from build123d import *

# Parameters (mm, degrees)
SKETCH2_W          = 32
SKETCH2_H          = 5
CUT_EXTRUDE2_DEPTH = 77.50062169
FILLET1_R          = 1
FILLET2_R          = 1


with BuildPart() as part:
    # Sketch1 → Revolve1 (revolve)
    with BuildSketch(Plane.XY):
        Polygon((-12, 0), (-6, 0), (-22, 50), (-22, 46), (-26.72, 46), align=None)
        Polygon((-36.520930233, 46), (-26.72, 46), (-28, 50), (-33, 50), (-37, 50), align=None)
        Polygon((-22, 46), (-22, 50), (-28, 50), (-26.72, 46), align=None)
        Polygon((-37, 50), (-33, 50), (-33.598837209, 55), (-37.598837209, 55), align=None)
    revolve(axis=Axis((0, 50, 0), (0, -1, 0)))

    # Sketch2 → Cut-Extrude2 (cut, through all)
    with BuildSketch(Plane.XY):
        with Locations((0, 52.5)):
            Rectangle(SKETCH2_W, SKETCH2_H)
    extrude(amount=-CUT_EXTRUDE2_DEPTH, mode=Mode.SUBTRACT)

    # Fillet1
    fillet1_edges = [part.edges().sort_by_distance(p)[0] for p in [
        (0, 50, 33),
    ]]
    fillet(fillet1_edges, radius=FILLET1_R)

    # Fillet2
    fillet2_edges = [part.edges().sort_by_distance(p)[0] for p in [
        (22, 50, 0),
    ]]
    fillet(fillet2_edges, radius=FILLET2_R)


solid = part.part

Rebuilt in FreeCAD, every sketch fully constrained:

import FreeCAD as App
import Part
import Sketcher
from FreeCAD import Vector


def edges_at(feature, points):
    """Names of the edges that pass closest to the given points."""
    edges = feature.Shape.Edges
    near = lambda p: min(range(len(edges)), key=lambda i: edges[i].distToShape(Part.Vertex(*p))[0])
    return sorted({f"Edge{near(p) + 1}" for p in points})


def add_polygon(sketch, points):
    """Adds a closed chain of lines whose ends are joined by coincident constraints."""
    first, n = sketch.GeometryCount, len(points)
    for a, b in zip(points, points[1:] + points[:1]):
        sketch.addGeometry(Part.LineSegment(App.Vector(*a, 0), App.Vector(*b, 0)), False)
    for i in range(n):
        sketch.addConstraint(Sketcher.Constraint("Coincident", first + i, 2, first + (i + 1) % n, 1))

doc = App.newDocument("Part")
body = doc.addObject("PartDesign::Body", "Body")

# Sketch on XY plane
sketch1 = doc.addObject("Sketcher::SketchObject", "Sketch")
body.addObject(sketch1)
sketch1.AttachmentSupport = (doc.XY_Plane, [""])
sketch1.MapMode = "FlatFace"
add_polygon(sketch1, [(-12, 0), (-6, 0), (-22, 50), (-33, 50), (-33.6, 55), (-37.6, 55), (-37, 50), (-36.5, 46), (-26.7, 46)])  # lines 0-8
sketch1.addConstraint([
    Sketcher.Constraint("Horizontal", 0),
    Sketcher.Constraint("Horizontal", 2),
    Sketcher.Constraint("Horizontal", 4),
    Sketcher.Constraint("Horizontal", 7),
    Sketcher.Constraint("PointOnObject", 0, 2, -1),
    Sketcher.Constraint("Parallel", 3, 5),
    Sketcher.Constraint("Parallel", 5, 6),
    Sketcher.Constraint("Parallel", 1, 8),
    Sketcher.Constraint("Horizontal", 2, 2, 5, 2),
    Sketcher.Constraint("DistanceX", 0, 1, 0, 2, 6.0),
    Sketcher.Constraint("DistanceX", 2, 2, 2, 1, 11.0),
    Sketcher.Constraint("DistanceX", 4, 2, 4, 1, 4.0),
    Sketcher.Constraint("DistanceX", 0, 2, -1, 1, 6.0),
    Sketcher.Constraint("DistanceX", 1, 2, -1, 1, 22.0),
    Sketcher.Constraint("DistanceY", -1, 1, 1, 2, 50.0),
    Sketcher.Constraint("DistanceY", -1, 1, 3, 2, 55.0),
    Sketcher.Constraint("DistanceY", -1, 1, 6, 2, 46.0),
    Sketcher.Constraint("DistanceX", 7, 1, 7, 2, 9.80093),
])
revolution = doc.addObject("PartDesign::Revolution", "Revolution")
body.addObject(revolution)
revolution.Profile = sketch1
revolution.ReferenceAxis = (sketch1, ["V_Axis"])
revolution.Angle = 360

# Sketch on XY plane
sketch2 = doc.addObject("Sketcher::SketchObject", "Sketch001")
body.addObject(sketch2)
sketch2.AttachmentSupport = (doc.XY_Plane, [""])
sketch2.MapMode = "FlatFace"
add_polygon(sketch2, [(-16, 55), (-16, 50), (16, 50), (16, 55)])  # lines 0-3
sketch2.addConstraint([
    Sketcher.Constraint("Vertical", 0),
    Sketcher.Constraint("Horizontal", 1),
    Sketcher.Constraint("Vertical", 2),
    Sketcher.Constraint("Horizontal", 3),
    Sketcher.Constraint("DistanceX", 1, 1, 1, 2, 32.0),
    Sketcher.Constraint("DistanceY", 0, 2, 0, 1, 5.0),
    Sketcher.Constraint("DistanceX", 0, 2, -1, 1, 16.0),
    Sketcher.Constraint("DistanceY", -1, 1, 0, 2, 50.0),
])
pocket1 = doc.addObject("PartDesign::Pocket", "Pocket")
body.addObject(pocket1)
pocket1.Profile = sketch2
pocket1.Type = "ThroughAll"
doc.recompute()

fillet = doc.addObject("PartDesign::Fillet", "Fillet")
body.addObject(fillet)
fillet.Base = (pocket1, edges_at(pocket1, [(0, 50, 33)]))
fillet.Radius = 1
doc.recompute()

fillet2 = doc.addObject("PartDesign::Fillet", "Fillet001")
body.addObject(fillet2)
fillet2.Base = (fillet, edges_at(fillet, [(22, 50, 0)]))
fillet2.Radius = 1

doc.recompute()
